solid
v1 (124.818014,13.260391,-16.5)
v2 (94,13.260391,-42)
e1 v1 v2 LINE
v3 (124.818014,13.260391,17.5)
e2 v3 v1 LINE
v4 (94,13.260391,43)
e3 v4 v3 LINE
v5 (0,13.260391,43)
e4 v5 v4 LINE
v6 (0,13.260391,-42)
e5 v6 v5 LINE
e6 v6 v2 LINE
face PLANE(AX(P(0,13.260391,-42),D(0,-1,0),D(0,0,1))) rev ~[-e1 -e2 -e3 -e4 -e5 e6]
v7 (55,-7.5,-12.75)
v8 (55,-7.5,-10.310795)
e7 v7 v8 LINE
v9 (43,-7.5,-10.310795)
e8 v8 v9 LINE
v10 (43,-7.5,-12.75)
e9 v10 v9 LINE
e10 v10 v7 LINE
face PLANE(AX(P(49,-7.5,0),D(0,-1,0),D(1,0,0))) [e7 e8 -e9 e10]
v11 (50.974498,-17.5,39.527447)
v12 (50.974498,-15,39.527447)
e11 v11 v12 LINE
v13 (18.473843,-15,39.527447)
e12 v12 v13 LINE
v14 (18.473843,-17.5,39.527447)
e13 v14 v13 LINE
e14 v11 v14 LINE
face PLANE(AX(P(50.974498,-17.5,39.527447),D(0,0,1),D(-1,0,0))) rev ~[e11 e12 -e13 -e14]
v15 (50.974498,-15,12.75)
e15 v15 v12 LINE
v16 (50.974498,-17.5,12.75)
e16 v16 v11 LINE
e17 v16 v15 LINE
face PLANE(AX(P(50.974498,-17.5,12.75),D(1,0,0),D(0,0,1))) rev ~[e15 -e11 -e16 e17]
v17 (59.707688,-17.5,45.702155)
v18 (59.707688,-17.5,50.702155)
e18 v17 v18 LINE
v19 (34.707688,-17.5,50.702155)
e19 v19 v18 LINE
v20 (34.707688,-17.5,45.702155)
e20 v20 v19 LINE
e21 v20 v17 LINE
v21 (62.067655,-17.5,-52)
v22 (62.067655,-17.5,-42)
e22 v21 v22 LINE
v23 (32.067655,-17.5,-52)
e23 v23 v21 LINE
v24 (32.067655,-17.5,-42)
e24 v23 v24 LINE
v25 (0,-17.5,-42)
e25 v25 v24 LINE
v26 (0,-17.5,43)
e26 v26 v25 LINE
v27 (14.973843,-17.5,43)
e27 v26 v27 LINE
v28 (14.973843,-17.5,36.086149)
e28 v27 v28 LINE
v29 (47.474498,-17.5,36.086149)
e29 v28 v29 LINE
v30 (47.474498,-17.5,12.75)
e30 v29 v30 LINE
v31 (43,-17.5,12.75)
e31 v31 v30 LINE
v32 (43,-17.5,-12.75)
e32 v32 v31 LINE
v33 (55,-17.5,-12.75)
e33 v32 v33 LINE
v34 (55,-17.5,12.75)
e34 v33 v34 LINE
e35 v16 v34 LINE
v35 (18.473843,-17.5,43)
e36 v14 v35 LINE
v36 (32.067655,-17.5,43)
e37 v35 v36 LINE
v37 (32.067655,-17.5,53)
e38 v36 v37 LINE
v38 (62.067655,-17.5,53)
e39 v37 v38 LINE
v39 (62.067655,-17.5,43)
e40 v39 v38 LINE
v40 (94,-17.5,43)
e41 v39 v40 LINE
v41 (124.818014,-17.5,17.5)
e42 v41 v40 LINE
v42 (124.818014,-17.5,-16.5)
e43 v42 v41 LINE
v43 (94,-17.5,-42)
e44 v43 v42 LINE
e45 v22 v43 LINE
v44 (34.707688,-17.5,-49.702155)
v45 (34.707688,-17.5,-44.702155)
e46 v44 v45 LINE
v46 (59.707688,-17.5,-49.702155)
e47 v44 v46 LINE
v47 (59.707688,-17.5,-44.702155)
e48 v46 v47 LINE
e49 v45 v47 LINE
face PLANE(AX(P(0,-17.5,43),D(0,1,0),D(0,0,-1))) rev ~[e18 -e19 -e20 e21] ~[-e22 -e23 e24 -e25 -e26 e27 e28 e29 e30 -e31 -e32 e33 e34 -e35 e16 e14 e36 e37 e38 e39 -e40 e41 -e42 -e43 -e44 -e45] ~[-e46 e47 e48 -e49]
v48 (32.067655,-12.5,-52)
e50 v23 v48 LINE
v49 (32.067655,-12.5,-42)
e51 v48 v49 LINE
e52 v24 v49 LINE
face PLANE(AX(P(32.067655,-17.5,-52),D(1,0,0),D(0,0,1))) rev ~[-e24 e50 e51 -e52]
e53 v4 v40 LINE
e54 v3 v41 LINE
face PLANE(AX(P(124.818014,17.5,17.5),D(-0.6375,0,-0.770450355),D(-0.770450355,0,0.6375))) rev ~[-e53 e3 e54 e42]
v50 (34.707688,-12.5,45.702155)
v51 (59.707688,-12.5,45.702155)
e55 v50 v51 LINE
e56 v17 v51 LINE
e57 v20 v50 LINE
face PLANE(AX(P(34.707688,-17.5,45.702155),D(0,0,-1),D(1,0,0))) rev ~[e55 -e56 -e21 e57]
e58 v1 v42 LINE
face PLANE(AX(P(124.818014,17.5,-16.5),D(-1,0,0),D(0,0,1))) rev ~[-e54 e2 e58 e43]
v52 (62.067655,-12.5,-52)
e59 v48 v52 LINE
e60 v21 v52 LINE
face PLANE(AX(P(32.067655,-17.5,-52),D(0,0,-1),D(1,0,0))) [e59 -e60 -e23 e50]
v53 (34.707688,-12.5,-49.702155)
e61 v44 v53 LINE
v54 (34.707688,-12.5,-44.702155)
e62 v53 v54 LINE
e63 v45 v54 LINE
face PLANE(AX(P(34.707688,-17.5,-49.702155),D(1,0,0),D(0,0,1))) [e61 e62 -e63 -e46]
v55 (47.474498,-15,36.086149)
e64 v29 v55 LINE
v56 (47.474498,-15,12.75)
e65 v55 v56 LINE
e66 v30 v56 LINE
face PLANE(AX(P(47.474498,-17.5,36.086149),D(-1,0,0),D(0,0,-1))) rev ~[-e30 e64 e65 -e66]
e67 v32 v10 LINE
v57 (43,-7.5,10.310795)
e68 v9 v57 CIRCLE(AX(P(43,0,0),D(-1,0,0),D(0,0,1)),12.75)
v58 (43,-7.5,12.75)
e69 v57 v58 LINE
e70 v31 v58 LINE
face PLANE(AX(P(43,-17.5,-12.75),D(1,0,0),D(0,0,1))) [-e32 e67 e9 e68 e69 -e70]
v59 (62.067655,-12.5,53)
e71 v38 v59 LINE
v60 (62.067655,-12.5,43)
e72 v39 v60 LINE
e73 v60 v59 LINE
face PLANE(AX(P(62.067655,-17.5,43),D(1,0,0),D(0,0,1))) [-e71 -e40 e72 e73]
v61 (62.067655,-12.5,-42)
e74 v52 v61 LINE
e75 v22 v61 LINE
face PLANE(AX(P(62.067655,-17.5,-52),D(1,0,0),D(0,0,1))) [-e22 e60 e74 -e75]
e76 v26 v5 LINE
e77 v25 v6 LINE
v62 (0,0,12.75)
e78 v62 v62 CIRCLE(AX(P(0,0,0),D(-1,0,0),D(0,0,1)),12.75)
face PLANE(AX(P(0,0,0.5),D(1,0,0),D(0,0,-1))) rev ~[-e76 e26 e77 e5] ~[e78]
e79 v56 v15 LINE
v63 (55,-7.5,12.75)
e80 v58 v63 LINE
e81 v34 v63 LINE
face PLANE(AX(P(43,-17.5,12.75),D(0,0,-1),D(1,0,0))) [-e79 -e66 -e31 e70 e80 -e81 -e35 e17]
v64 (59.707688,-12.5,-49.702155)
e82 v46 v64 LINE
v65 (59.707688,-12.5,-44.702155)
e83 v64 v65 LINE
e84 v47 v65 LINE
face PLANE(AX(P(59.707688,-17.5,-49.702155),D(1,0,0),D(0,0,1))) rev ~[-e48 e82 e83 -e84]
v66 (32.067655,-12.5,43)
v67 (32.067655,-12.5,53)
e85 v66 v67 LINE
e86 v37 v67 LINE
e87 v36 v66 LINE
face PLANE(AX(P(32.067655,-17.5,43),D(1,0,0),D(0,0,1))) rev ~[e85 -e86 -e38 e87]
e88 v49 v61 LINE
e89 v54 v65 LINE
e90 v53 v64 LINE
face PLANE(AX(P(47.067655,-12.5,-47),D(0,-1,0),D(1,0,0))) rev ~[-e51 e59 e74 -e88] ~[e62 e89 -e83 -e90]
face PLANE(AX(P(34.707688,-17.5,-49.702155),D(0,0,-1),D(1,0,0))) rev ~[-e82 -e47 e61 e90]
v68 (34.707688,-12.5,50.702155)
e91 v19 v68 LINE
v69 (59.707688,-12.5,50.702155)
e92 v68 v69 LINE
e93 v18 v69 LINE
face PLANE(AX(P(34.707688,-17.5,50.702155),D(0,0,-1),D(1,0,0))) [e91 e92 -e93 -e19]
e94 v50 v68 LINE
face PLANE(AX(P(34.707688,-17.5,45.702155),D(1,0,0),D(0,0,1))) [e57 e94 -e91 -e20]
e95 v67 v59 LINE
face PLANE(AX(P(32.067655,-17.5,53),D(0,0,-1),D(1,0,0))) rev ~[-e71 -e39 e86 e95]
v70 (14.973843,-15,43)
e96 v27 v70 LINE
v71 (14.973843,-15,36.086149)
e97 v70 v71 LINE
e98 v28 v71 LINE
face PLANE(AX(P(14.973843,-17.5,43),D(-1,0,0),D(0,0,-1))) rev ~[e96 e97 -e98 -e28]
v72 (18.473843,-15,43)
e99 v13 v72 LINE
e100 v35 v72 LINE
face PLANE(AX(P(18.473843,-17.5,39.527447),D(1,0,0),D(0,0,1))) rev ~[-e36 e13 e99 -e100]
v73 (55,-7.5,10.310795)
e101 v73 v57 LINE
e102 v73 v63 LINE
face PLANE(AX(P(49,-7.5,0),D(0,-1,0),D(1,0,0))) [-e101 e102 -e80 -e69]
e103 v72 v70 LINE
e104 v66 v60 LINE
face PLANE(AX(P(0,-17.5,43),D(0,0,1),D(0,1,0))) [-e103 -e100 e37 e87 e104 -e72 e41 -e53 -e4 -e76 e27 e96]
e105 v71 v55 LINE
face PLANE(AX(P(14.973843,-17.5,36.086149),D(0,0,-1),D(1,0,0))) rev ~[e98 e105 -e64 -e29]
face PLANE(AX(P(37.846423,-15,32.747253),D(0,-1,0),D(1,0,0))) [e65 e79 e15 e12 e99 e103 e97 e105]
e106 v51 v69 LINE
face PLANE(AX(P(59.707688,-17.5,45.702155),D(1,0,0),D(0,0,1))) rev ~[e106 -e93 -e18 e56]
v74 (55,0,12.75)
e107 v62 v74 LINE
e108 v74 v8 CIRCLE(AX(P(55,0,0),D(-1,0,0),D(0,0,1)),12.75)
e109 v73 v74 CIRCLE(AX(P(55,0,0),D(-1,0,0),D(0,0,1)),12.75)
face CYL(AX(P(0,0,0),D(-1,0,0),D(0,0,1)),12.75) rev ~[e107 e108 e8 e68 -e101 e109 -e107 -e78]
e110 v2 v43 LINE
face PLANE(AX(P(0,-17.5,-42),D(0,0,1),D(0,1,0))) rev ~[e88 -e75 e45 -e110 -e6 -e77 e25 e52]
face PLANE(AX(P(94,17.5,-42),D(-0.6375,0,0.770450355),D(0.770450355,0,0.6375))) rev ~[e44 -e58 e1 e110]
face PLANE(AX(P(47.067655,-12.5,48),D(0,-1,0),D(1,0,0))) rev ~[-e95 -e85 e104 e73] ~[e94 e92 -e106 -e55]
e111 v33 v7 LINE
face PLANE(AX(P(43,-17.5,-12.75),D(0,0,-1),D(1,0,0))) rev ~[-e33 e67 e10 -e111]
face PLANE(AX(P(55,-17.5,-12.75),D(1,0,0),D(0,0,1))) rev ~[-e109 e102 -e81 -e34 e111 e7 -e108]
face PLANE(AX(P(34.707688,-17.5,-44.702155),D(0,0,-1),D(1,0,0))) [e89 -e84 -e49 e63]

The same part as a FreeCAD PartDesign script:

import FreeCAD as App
import Part
import Sketcher
Q = App.Units.Quantity


def add_polygon(sketch, points):
    """Adds a closed chain of lines whose ends are joined by coincident constraints."""
    first, n = sketch.GeometryCount, len(points)
    for a, b in zip(points, points[1:] + points[:1]):
        sketch.addGeometry(Part.LineSegment(App.Vector(*a, 0), App.Vector(*b, 0)), False)
    for i in range(n):
        sketch.addConstraint(Sketcher.Constraint("Coincident", first + i, 2, first + (i + 1) % n, 1))

doc = App.newDocument("Part")
body = doc.addObject("PartDesign::Body", "Body")

# Sketch on YZ plane
sketch1 = body.newObject("Sketcher::SketchObject", "Sketch")
sketch1.AttachmentSupport = (doc.getObject("YZ_Plane"), [""])
sketch1.MapMode = "FlatFace"
add_polygon(sketch1, [(18, 43), (-18, 43), (-18, -42), (18, -42)])  # lines 0-3
sketch1.addConstraint([
    Sketcher.Constraint("Horizontal", 0),
    Sketcher.Constraint("Vertical", 1),
    Sketcher.Constraint("Horizontal", 2),
    Sketcher.Constraint("Vertical", 3),
    Sketcher.Constraint("DistanceX", 0, 2, 0, 1, Q("35 mm")),
    Sketcher.Constraint("DistanceY", 1, 2, 1, 1, Q("85 mm")),
    Sketcher.Constraint("DistanceY", -1, 1, 0, 2, Q("43 mm")),
    Sketcher.Constraint("DistanceX", 0, 2, -1, 1, Q("17.5 mm")),
])
pad1 = body.newObject("PartDesign::Pad", "Pad")
pad1.Profile = sketch1
pad1.Length = 145.5

# Sketch on YZ plane
sketch2 = body.newObject("Sketcher::SketchObject", "Sketch001")
sketch2.AttachmentSupport = (doc.getObject("YZ_Plane"), [""])
sketch2.MapMode = "FlatFace"
sketch2.addGeometry(Part.Circle(App.Vector(0, 0, 0), App.Vector(0, 0, 1), 13), False)
sketch2.addConstraint([
    Sketcher.Constraint("Coincident", 0, 3, -1, 1),
    Sketcher.Constraint("Diameter", 0, Q("25.5 mm")),
])
pocket1 = body.newObject("PartDesign::Pocket", "Pocket")
pocket1.Profile = sketch2
pocket1.Length = 55
pocket1.Reversed = True

# Sketch on XZ plane
sketch3 = body.newObject("Sketcher::SketchObject", "Sketch002")
sketch3.AttachmentSupport = (doc.getObject("XZ_Plane"), [""])
sketch3.MapMode = "FlatFace"
sketch3.AttachmentOffset = App.Placement(App.Vector(0, 0, -17.5), App.Rotation())
add_polygon(sketch3, [(146, -42), (94, -42), (125, -16), (125, 18), (94, 43), (146, 43)])  # lines 0-5
sketch3.addConstraint([
    Sketcher.Constraint("Horizontal", 0),
    Sketcher.Constraint("Vertical", 2),
    Sketcher.Constraint("Horizontal", 4),
    Sketcher.Constraint("Vertical", 5),
    Sketcher.Constraint("Vertical", 0, 2, 3, 2),
    Sketcher.Constraint("Equal", 1, 3),
    Sketcher.Constraint("DistanceY", 2, 1, 2, 2, Q("34 mm")),
    Sketcher.Constraint("DistanceY", 5, 2, 5, 1, Q("85 mm")),
    Sketcher.Constraint("Distance", 1, Q("40 mm")),
    Sketcher.Constraint("DistanceX", 0, 2, 0, 1, Q("51.5 mm")),
    Sketcher.Constraint("DistanceX", -1, 1, 0, 2, Q("94 mm")),
    Sketcher.Constraint("DistanceY", 0, 2, -1, 1, Q("42 mm")),
])
pocket2 = body.newObject("PartDesign::Pocket", "Pocket001")
pocket2.Profile = sketch3
pocket2.Type = "ThroughAll"
pocket2.Reversed = True

# Sketch on XZ plane
sketch4 = body.newObject("Sketcher::SketchObject", "Sketch003")
sketch4.AttachmentSupport = (doc.getObject("XZ_Plane"), [""])
sketch4.MapMode = "FlatFace"
sketch4.AttachmentOffset = App.Placement(App.Vector(0, 0, 17.5), App.Rotation())
add_polygon(sketch4, [(43, 13), (43, -13), (55, -13), (55, 13)])  # lines 0-3
sketch4.addConstraint([
    Sketcher.Constraint("Vertical", 0),
    Sketcher.Constraint("Horizontal", 1),
    Sketcher.Constraint("Vertical", 2),
    Sketcher.Constraint("Horizontal", 3),
    Sketcher.Constraint("DistanceX", 1, 1, 1, 2, Q("12 mm")),
    Sketcher.Constraint("DistanceY", 0, 2, 0, 1, Q("25.5 mm")),
    Sketcher.Constraint("DistanceX", -1, 1, 0, 2, Q("43 mm")),
    Sketcher.Constraint("DistanceY", 0, 2, -1, 1, Q("12.75 mm")),
])
pocket3 = body.newObject("PartDesign::Pocket", "Pocket002")
pocket3.Profile = sketch4
pocket3.Length = 10

# Sketch on XZ plane
sketch5 = body.newObject("Sketcher::SketchObject", "Sketch004")
sketch5.AttachmentSupport = (doc.getObject("XZ_Plane"), [""])
sketch5.MapMode = "FlatFace"
sketch5.AttachmentOffset = App.Placement(App.Vector(0, 0, 17.5), App.Rotation())
add_polygon(sketch5, [(51, 39.5), (18.5, 39.5), (18.5, 43), (15, 43), (15, 36.1), (47.5, 36.1), (47.5, 12.8), (51, 12.8)])  # lines 0-7
sketch5.addConstraint([
    Sketcher.Constraint("Horizontal", 0),
    Sketcher.Constraint("Vertical", 1),
    Sketcher.Constraint("Horizontal", 2),
    Sketcher.Constraint("Vertical", 3),
    Sketcher.Constraint("Horizontal", 4),
    Sketcher.Constraint("Vertical", 5),
    Sketcher.Constraint("Horizontal", 6),
    Sketcher.Constraint("Vertical", 7),
    Sketcher.Constraint("Equal", 0, 4),
    Sketcher.Constraint("DistanceX", 2, 2, 2, 1, Q("3.5 mm")),
    Sketcher.Constraint("DistanceY", -1, 1, 1, 2, Q("43 mm")),
    Sketcher.Constraint("DistanceY", -1, 1, 5, 2, Q("12.75 mm")),
    Sketcher.Constraint("DistanceY", 3, 2, 3, 1, Q("6.913851 mm")),
    Sketcher.Constraint("DistanceX", 0, 2, 0, 1, Q("32.500654 mm")),
    Sketcher.Constraint("DistanceY", 1, 1, 1, 2, Q("3.472553 mm")),
    Sketcher.Constraint("DistanceX", -1, 1, 0, 2, Q("18.473843 mm")),
])
pocket4 = body.newObject("PartDesign::Pocket", "Pocket003")
pocket4.Profile = sketch5
pocket4.Length = 2.5

# Sketch on XZ plane
sketch6 = body.newObject("Sketcher::SketchObject", "Sketch005")
sketch6.AttachmentSupport = (doc.getObject("XZ_Plane"), [""])
sketch6.MapMode = "FlatFace"
sketch6.AttachmentOffset = App.Placement(App.Vector(0, 0, 17.5), App.Rotation())
add_polygon(sketch6, [(32, -42), (32, -52), (62, -52), (62, -42)])  # lines 0-3
add_polygon(sketch6, [(60, -50), (35, -50), (35, -45), (60, -45)])  # lines 4-7
add_polygon(sketch6, [(32, 53), (32, 43), (62, 43), (62, 53)])  # lines 8-11
add_polygon(sketch6, [(60, 46), (35, 46), (35, 51), (60, 51)])  # lines 12-15
sketch6.addConstraint([
    Sketcher.Constraint("Vertical", 0),
    Sketcher.Constraint("Horizontal", 1),
    Sketcher.Constraint("Vertical", 2),
    Sketcher.Constraint("Horizontal", 3),
    Sketcher.Constraint("Horizontal", 4),
    Sketcher.Constraint("Vertical", 5),
    Sketcher.Constraint("Horizontal", 6),
    Sketcher.Constraint("Vertical", 7),
    Sketcher.Constraint("Vertical", 8),
    Sketcher.Constraint("Horizontal", 9),
    Sketcher.Constraint("Vertical", 10),
    Sketcher.Constraint("Horizontal", 11),
    Sketcher.Constraint("Horizontal", 12),
    Sketcher.Constraint("Vertical", 13),
    Sketcher.Constraint("Horizontal", 14),
    Sketcher.Constraint("Vertical", 15),
    Sketcher.Constraint("Vertical", 3, 2, 8, 2),
    Sketcher.Constraint("Vertical", 2, 2, 9, 2),
    Sketcher.Constraint("Vertical", 5, 2, 12, 2),
    Sketcher.Constraint("Vertical", 7, 2, 14, 2),
    Sketcher.Constraint("Equal", 2, 8),
    Sketcher.Constraint("Equal", 7, 13),
    Sketcher.Constraint("DistanceX", 1, 1, 1, 2, Q("30 mm")),
    Sketcher.Constraint("DistanceX", 4, 2, 4, 1, Q("25 mm")),
    Sketcher.Constraint("DistanceY", 0, 2, 0, 1, Q("10 mm")),
    Sketcher.Constraint("DistanceY", 5, 1, 5, 2, Q("5 mm")),
    Sketcher.Constraint("DistanceY", 0, 2, -1, 1, Q("52 mm")),
    Sketcher.Constraint("DistanceY", -1, 1, 8, 2, Q("43 mm")),
    Sketcher.Constraint("DistanceX", -1, 1, 0, 2, Q("32.067655 mm")),
    Sketcher.Constraint("DistanceX", -1, 1, 4, 2, Q("34.707688 mm")),
    Sketcher.Constraint("DistanceY", 4, 2, -1, 1, Q("49.702155 mm")),
    Sketcher.Constraint("DistanceY", -1, 1, 12, 2, Q("45.702155 mm")),
])
pad2 = body.newObject("PartDesign::Pad", "Pad001")
pad2.Profile = sketch6
pad2.Length = 5
pad2.Reversed = True

# Sketch on YZ plane
sketch7 = body.newObject("Sketcher::SketchObject", "Sketch006")
sketch7.AttachmentSupport = (doc.getObject("YZ_Plane"), [""])
sketch7.MapMode = "FlatFace"
add_polygon(sketch7, [(17.5, -42), (13.3, -42), (13.3, 43), (17.5, 43)])  # lines 0-3
sketch7.addConstraint([
    Sketcher.Constraint("Horizontal", 0),
    Sketcher.Constraint("Vertical", 1),
    Sketcher.Constraint("Horizontal", 2),
    Sketcher.Constraint("Vertical", 3),
    Sketcher.Constraint("DistanceY", 1, 1, 1, 2, Q("85 mm")),
    Sketcher.Constraint("DistanceY", 0, 2, -1, 1, Q("42 mm")),
    Sketcher.Constraint("DistanceX", -1, 1, 2, 2, Q("17.5 mm")),
    Sketcher.Constraint("DistanceX", 0, 2, 0, 1, Q("4.239609 mm")),
])
pocket5 = body.newObject("PartDesign::Pocket", "Pocket004")
pocket5.Profile = sketch7
pocket5.Type = "UpToFirst"
pocket5.Reversed = True

doc.recompute()
